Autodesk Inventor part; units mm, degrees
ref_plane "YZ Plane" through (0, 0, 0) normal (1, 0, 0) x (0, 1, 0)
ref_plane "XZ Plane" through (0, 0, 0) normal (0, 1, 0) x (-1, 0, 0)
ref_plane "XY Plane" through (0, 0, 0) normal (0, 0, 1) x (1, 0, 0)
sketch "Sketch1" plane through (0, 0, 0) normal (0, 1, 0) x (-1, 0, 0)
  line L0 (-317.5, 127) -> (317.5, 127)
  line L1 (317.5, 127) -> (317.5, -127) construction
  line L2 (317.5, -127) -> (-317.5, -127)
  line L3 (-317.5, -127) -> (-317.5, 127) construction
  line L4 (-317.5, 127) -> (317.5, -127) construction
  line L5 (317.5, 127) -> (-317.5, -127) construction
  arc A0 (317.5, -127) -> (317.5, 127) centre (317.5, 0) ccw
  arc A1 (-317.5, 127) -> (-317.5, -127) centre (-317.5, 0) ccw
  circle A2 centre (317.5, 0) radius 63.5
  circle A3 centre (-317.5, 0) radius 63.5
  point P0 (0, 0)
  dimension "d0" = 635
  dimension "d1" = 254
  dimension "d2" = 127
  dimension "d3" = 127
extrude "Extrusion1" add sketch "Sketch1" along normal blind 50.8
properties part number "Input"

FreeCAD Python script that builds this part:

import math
import FreeCAD as App
import Part
import Sketcher
Q = App.Units.Quantity

doc = App.newDocument("Part")
params = doc.addObject("Spreadsheet::Sheet", "Params")
for row, (alias, value) in enumerate([
    ("sketch1_diameter", "5 in"),
    ("sketch1_radius", "5 in"),
    ("sketch1_width", "25 in"),
    ("pad1_length", "2 in"),
], start=1):
    params.set(f"A{row}", alias)
    params.set(f"B{row}", "=" + value)
    params.setAlias(f"B{row}", alias)

body = doc.addObject("PartDesign::Body", "Body")

# Sketch on XZ plane
sketch1 = body.newObject("Sketcher::SketchObject", "Sketch")
sketch1.AttachmentSupport = (doc.getObject("XZ_Plane"), [""])
sketch1.MapMode = "FlatFace"
sketch1.addGeometry([
    Part.LineSegment(App.Vector(-318, 127, 0), App.Vector(318, 127, 0)),  # 0
    Part.ArcOfCircle(Part.Circle(App.Vector(318, 0, 0), App.Vector(0, 0, 1), 127), math.radians(-90), math.radians(90)),  # 1
    Part.LineSegment(App.Vector(318, -127, 0), App.Vector(-318, -127, 0)),  # 2
    Part.ArcOfCircle(Part.Circle(App.Vector(-318, 0, 0), App.Vector(0, 0, 1), 127), math.radians(90), math.radians(270)),  # 3
    Part.Circle(App.Vector(318, 0, 0), App.Vector(0, 0, 1), 64),  # 4
    Part.Circle(App.Vector(-318, 0, 0), App.Vector(0, 0, 1), 64),  # 5
], False)
sketch1.addConstraint([
    Sketcher.Constraint("Tangent", 0, 2, 1, 2),
    Sketcher.Constraint("Tangent", 1, 1, 2, 1),
    Sketcher.Constraint("Tangent", 2, 2, 3, 2),
    Sketcher.Constraint("Tangent", 3, 1, 0, 1),
    Sketcher.Constraint("Horizontal", 0),
    Sketcher.Constraint("Horizontal", 2),
    Sketcher.Constraint("Coincident", 4, 3, 1, 3),
    Sketcher.Constraint("Coincident", 5, 3, 3, 3),
    Sketcher.Constraint("Equal", 4, 5),
    Sketcher.Constraint("Symmetric", 1, 3, 3, 3, -1, 1),
    Sketcher.Constraint("Diameter", 4, Q("5 in")),
    Sketcher.Constraint("Radius", 1, Q("5 in")),
    Sketcher.Constraint("DistanceX", 0, 1, 0, 2, Q("25 in")),
])
sketch1.setExpression("Constraints[10]", "Params.sketch1_diameter")
sketch1.setExpression("Constraints[11]", "Params.sketch1_radius")
sketch1.setExpression("Constraints[12]", "Params.sketch1_width")
pad1 = body.newObject("PartDesign::Pad", "Pad")
pad1.Profile = sketch1
pad1.setExpression("Length", "Params.pad1_length")
pad1.Reversed = True

doc.recompute()
